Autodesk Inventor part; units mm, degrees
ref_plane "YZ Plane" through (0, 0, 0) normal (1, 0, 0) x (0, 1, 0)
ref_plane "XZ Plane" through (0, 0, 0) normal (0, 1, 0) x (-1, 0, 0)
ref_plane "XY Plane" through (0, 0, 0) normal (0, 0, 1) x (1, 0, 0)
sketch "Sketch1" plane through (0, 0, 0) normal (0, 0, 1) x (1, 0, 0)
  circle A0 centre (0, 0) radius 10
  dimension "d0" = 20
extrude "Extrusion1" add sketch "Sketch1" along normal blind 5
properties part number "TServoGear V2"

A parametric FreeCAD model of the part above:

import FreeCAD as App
import Part
import Sketcher

V = App.Vector
Q = App.Units.Quantity

doc = App.newDocument("Part")
body = doc.addObject("PartDesign::Body", "Body")

# Sketch on XY plane
sketch1 = body.newObject("Sketcher::SketchObject", "Sketch")
sketch1.AttachmentSupport = (doc.getObject("XY_Plane"), [""])
sketch1.MapMode = "FlatFace"
sketch1.addGeometry(Part.Circle(V(0, 0, 0), V(0, 0, 1), 10), False)
sketch1.addConstraint(Sketcher.Constraint("Coincident", 0, 3, -1, 1))
sketch1.addConstraint(Sketcher.Constraint("Diameter", 0, Q("20 mm")))
pad1 = body.newObject("PartDesign::Pad", "Pad")
pad1.Profile = sketch1
pad1.Length = 5

doc.recompute()
